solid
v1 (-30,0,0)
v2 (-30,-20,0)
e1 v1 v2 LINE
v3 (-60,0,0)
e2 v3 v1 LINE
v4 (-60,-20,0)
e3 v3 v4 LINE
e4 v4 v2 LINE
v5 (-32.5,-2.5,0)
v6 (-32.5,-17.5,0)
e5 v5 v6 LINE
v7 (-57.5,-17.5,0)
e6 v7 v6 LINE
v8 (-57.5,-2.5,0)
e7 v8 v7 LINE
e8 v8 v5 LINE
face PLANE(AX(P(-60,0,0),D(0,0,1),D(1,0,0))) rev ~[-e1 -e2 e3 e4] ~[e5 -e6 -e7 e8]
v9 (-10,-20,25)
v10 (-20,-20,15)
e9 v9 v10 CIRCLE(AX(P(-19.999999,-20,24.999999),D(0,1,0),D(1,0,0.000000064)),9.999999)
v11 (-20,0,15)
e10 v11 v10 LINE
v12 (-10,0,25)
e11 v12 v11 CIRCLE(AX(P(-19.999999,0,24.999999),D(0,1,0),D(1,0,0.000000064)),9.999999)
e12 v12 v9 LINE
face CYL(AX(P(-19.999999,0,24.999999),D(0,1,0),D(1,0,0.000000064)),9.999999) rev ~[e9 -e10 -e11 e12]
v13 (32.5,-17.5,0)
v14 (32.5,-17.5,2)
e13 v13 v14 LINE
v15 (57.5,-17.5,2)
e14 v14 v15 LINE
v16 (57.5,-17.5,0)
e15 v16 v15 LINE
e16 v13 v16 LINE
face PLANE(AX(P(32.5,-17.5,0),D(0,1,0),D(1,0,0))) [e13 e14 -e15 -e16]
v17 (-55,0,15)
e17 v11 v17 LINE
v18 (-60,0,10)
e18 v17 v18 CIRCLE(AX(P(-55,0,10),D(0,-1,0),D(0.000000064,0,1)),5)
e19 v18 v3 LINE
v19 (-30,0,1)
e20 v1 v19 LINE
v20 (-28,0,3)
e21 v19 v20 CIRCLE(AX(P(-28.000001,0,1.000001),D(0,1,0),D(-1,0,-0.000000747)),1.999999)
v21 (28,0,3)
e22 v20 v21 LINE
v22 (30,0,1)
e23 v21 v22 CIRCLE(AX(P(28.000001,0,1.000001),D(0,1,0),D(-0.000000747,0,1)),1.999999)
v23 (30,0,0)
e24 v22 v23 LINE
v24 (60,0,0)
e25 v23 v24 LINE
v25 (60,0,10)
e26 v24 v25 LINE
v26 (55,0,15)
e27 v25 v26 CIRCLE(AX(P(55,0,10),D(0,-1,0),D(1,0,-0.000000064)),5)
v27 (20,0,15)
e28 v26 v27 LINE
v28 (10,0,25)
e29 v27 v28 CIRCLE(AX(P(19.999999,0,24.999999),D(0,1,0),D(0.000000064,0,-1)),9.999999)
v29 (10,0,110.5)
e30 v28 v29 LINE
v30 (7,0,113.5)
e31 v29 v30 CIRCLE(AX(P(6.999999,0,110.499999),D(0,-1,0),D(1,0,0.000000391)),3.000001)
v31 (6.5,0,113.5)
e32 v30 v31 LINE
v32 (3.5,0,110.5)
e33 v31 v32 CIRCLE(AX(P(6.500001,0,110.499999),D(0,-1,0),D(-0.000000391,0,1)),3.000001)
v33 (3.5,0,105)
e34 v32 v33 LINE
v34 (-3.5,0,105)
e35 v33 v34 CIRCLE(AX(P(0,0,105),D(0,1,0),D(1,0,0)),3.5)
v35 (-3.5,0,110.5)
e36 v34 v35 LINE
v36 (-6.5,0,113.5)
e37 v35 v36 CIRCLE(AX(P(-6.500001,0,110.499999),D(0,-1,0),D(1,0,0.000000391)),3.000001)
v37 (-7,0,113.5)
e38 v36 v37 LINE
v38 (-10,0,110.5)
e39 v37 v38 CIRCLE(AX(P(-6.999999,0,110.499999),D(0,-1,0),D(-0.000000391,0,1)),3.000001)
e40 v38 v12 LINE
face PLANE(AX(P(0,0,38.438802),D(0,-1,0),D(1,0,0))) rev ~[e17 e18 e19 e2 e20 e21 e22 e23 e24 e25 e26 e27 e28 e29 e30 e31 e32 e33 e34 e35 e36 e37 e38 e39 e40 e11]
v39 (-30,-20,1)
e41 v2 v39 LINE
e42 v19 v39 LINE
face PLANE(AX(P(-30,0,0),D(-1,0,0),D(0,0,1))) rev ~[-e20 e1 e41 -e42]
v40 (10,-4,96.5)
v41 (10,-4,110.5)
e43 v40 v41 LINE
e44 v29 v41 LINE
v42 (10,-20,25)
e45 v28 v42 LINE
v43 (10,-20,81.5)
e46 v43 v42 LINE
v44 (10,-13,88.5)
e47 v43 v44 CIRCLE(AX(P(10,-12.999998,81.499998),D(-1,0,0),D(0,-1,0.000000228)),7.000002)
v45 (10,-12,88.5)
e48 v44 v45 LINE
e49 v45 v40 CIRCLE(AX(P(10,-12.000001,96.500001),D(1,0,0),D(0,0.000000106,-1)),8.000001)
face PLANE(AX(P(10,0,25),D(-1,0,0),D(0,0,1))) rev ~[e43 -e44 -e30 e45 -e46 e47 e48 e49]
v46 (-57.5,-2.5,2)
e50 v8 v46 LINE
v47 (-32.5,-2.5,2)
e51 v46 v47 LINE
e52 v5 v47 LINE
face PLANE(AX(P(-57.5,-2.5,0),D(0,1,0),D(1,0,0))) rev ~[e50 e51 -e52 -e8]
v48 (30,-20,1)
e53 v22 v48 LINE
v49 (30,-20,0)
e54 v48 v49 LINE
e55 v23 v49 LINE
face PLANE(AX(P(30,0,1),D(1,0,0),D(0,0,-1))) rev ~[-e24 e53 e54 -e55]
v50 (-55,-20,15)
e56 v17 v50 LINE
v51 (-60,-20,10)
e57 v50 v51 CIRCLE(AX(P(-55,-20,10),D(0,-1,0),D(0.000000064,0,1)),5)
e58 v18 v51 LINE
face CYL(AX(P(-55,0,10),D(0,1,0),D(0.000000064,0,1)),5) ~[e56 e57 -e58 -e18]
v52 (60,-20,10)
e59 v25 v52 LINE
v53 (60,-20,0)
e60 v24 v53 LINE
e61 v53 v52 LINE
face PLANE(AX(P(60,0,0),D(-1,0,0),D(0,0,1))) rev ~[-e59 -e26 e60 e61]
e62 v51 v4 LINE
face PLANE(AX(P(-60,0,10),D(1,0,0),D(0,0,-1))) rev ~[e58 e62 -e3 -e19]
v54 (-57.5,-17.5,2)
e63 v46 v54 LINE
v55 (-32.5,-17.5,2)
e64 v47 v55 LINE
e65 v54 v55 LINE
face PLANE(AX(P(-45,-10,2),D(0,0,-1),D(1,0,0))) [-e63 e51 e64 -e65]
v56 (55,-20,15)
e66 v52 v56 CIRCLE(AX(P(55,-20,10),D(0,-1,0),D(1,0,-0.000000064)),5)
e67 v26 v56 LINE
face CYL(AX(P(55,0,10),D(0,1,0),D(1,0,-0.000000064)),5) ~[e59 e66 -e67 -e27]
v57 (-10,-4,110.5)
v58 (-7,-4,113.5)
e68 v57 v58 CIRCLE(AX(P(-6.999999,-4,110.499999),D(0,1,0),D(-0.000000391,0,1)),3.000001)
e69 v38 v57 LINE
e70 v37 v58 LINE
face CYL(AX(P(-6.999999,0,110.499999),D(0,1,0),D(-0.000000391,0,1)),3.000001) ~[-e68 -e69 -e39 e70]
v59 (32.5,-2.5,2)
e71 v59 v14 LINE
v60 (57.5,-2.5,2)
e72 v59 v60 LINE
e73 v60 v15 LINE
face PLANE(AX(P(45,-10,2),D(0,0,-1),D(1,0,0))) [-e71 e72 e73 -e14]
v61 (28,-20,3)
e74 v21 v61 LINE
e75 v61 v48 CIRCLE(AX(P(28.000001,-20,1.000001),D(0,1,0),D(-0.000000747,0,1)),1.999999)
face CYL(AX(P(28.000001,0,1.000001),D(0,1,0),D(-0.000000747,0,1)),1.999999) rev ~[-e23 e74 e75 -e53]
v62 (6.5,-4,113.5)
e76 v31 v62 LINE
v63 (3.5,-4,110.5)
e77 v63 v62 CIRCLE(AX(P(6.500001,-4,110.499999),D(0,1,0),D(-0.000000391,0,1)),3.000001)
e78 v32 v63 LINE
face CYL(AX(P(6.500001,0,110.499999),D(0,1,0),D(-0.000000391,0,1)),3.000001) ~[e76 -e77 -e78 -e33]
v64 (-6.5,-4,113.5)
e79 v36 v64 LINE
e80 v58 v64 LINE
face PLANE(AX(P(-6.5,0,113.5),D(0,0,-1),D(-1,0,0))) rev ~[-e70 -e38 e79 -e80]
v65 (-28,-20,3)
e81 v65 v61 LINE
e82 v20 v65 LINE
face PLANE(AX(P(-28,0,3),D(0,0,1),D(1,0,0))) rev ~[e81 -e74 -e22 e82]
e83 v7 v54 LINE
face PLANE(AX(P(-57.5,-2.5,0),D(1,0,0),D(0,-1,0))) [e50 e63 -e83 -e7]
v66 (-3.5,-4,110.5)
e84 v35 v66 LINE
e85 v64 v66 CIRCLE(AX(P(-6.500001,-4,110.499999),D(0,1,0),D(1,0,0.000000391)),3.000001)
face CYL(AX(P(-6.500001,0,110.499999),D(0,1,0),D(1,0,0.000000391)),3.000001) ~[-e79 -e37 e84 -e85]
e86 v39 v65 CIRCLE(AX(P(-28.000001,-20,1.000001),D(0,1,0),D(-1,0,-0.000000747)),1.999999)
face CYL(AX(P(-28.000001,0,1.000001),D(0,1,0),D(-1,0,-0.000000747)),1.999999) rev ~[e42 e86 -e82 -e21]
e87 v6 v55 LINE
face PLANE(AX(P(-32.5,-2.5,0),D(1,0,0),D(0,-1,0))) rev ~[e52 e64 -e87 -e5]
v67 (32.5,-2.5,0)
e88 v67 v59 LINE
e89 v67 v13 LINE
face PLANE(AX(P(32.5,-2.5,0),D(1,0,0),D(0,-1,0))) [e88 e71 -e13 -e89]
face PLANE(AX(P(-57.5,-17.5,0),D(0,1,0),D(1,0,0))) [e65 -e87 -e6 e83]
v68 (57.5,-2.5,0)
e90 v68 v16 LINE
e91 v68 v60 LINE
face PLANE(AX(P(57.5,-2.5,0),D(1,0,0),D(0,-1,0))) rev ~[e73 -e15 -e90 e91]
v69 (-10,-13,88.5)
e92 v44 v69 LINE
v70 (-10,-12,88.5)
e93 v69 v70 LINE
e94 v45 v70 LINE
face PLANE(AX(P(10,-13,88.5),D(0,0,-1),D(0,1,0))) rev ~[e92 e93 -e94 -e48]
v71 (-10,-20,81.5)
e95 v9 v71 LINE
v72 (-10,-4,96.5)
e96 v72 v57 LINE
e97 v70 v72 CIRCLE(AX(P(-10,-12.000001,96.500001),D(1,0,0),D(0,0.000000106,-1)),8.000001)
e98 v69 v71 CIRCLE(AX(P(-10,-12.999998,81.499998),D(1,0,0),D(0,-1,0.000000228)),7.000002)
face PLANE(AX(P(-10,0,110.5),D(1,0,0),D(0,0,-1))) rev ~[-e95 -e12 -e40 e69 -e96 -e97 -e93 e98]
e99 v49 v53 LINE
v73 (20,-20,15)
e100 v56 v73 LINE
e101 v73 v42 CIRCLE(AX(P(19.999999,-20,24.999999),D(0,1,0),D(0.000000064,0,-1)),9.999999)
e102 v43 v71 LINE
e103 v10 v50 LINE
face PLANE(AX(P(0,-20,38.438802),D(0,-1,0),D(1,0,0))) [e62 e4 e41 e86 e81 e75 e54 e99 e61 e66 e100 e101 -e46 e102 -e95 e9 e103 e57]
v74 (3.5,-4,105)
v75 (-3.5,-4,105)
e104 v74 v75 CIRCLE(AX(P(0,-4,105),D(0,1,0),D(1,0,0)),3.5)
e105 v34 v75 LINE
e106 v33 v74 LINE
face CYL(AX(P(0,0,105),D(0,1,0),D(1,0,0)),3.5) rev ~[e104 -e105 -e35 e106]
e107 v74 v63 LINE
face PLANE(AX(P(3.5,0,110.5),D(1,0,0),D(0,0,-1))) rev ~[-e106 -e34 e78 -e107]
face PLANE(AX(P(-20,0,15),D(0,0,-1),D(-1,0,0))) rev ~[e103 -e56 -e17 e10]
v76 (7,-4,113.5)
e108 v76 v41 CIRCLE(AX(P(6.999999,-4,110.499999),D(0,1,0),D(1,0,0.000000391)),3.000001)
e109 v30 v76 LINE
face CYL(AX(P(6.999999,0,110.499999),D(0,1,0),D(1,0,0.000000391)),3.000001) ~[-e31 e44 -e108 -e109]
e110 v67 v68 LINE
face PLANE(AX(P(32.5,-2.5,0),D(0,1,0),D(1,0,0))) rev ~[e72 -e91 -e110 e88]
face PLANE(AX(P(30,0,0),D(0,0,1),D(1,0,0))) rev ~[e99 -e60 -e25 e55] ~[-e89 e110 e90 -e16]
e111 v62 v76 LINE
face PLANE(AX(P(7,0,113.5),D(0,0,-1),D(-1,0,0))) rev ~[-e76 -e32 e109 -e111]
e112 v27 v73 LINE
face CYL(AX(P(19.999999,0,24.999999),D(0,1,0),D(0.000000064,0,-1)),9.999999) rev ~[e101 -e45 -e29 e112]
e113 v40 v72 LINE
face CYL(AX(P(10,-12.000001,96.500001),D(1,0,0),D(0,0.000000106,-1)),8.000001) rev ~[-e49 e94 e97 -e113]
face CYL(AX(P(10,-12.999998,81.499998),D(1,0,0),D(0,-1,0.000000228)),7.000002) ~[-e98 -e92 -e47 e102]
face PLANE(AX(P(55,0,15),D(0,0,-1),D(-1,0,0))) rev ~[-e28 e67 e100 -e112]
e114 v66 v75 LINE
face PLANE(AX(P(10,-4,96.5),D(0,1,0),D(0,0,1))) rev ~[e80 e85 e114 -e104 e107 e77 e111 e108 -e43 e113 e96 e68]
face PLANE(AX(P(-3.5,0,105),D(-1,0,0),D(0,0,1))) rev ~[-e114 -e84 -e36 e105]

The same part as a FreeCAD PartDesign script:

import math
import FreeCAD as App
import Part
import Sketcher

V = App.Vector
Q = App.Units.Quantity


def add_polygon(sketch, points):
    """Adds a closed chain of lines whose ends are joined by coincident constraints."""
    first, n = sketch.GeometryCount, len(points)
    for a, b in zip(points, points[1:] + points[:1]):
        sketch.addGeometry(Part.LineSegment(App.Vector(*a, 0), App.Vector(*b, 0)), False)
    for i in range(n):
        sketch.addConstraint(Sketcher.Constraint("Coincident", first + i, 2, first + (i + 1) % n, 1))

doc = App.newDocument("Part")
body = doc.addObject("PartDesign::Body", "Body")

sketch1 = body.newObject("Sketcher::SketchObject", "Sketch")
sketch1.AttachmentSupport = (doc.getObject("XZ_Plane"), [""])
sketch1.MapMode = "FlatFace"
sketch1.addGeometry([
    Part.ArcOfCircle(Part.Circle(V(0, 105, 0), V(0, 0, 1), 3.5), math.radians(180), math.radians(360)),
    Part.LineSegment(V(-3.5, 105, 0), V(-3.5, 110.5, 0)),
    Part.ArcOfCircle(Part.Circle(V(-6.5, 110.5, 0), V(0, 0, 1), 3), math.radians(0), math.radians(90)),
    Part.LineSegment(V(-6.5, 113.5, 0), V(-7, 113.5, 0)),
    Part.ArcOfCircle(Part.Circle(V(-7, 110.5, 0), V(0, 0, 1), 3), math.radians(90), math.radians(180)),
    Part.LineSegment(V(-10, 110.5, 0), V(-10, 25, 0)),
    Part.ArcOfCircle(Part.Circle(V(-20, 25, 0), V(0, 0, 1), 10), math.radians(-90), math.radians(0)),
    Part.LineSegment(V(-20, 15, 0), V(-55, 15, 0)),
    Part.ArcOfCircle(Part.Circle(V(-55, 10, 0), V(0, 0, 1), 5), math.radians(90), math.radians(180)),
    Part.LineSegment(V(-60, 10, 0), V(-60, 0, 0)),
    Part.LineSegment(V(-60, 0, 0), V(-30, 0, 0)),
    Part.LineSegment(V(-30, 0, 0), V(-30, 1, 0)),
    Part.ArcOfCircle(Part.Circle(V(-28, 1, 0), V(0, 0, 1), 2), math.radians(90), math.radians(180)),
    Part.LineSegment(V(-28, 3, 0), V(28, 3, 0)),
    Part.ArcOfCircle(Part.Circle(V(28, 1, 0), V(0, 0, 1), 2), math.radians(0), math.radians(90)),
    Part.LineSegment(V(30, 1, 0), V(30, 0, 0)),
    Part.LineSegment(V(30, 0, 0), V(60, 0, 0)),
    Part.LineSegment(V(60, 0, 0), V(60, 10, 0)),
    Part.ArcOfCircle(Part.Circle(V(55, 10, 0), V(0, 0, 1), 5), math.radians(0), math.radians(90)),
    Part.LineSegment(V(55, 15, 0), V(20, 15, 0)),
    Part.ArcOfCircle(Part.Circle(V(20, 25, 0), V(0, 0, 1), 10), math.radians(180), math.radians(270)),
    Part.LineSegment(V(10, 25, 0), V(10, 110.5, 0)),
    Part.ArcOfCircle(Part.Circle(V(7, 110.5, 0), V(0, 0, 1), 3), math.radians(0), math.radians(90)),
    Part.LineSegment(V(7, 113.5, 0), V(6.5, 113.5, 0)),
    Part.ArcOfCircle(Part.Circle(V(6.5, 110.5, 0), V(0, 0, 1), 3), math.radians(90), math.radians(180)),
    Part.LineSegment(V(3.5, 110.5, 0), V(3.5, 105, 0)),
], False)
sketch1.addConstraint([
    Sketcher.Constraint("Tangent", 0, 1, 1, 1),
    Sketcher.Constraint("Tangent", 1, 2, 2, 1),
    Sketcher.Constraint("Tangent", 2, 2, 3, 1),
    Sketcher.Constraint("Tangent", 3, 2, 4, 1),
    Sketcher.Constraint("Tangent", 4, 2, 5, 1),
    Sketcher.Constraint("Tangent", 5, 2, 6, 2),
    Sketcher.Constraint("Tangent", 6, 1, 7, 1),
    Sketcher.Constraint("Tangent", 7, 2, 8, 1),
    Sketcher.Constraint("Tangent", 8, 2, 9, 1),
    Sketcher.Constraint("Coincident", 9, 2, 10, 1),
    Sketcher.Constraint("Coincident", 10, 2, 11, 1),
    Sketcher.Constraint("Tangent", 11, 2, 12, 2),
    Sketcher.Constraint("Tangent", 12, 1, 13, 1),
    Sketcher.Constraint("Tangent", 13, 2, 14, 2),
    Sketcher.Constraint("Tangent", 14, 1, 15, 1),
    Sketcher.Constraint("Coincident", 15, 2, 16, 1),
    Sketcher.Constraint("Coincident", 16, 2, 17, 1),
    Sketcher.Constraint("Tangent", 17, 2, 18, 1),
    Sketcher.Constraint("Tangent", 18, 2, 19, 1),
    Sketcher.Constraint("Tangent", 19, 2, 20, 2),
    Sketcher.Constraint("Tangent", 20, 1, 21, 1),
    Sketcher.Constraint("Tangent", 21, 2, 22, 1),
    Sketcher.Constraint("Tangent", 22, 2, 23, 1),
    Sketcher.Constraint("Tangent", 23, 2, 24, 1),
    Sketcher.Constraint("Tangent", 24, 2, 25, 1),
    Sketcher.Constraint("Tangent", 25, 2, 0, 2),
    Sketcher.Constraint("Vertical", 1),
    Sketcher.Constraint("Horizontal", 3),
    Sketcher.Constraint("Vertical", 5),
    Sketcher.Constraint("Horizontal", 7),
    Sketcher.Constraint("Vertical", 9),
    Sketcher.Constraint("Horizontal", 10),
    Sketcher.Constraint("Vertical", 11),
    Sketcher.Constraint("Horizontal", 13),
    Sketcher.Constraint("Vertical", 15),
    Sketcher.Constraint("Horizontal", 16),
    Sketcher.Constraint("Vertical", 17),
    Sketcher.Constraint("Horizontal", 19),
    Sketcher.Constraint("Vertical", 21),
    Sketcher.Constraint("Horizontal", 23),
    Sketcher.Constraint("Vertical", 25),
    Sketcher.Constraint("Equal", 2, 4),
    Sketcher.Constraint("Equal", 12, 14),
    Sketcher.Constraint("Equal", 8, 18),
    Sketcher.Constraint("Equal", 6, 20),
    Sketcher.Constraint("Equal", 4, 22),
    Sketcher.Constraint("Equal", 22, 24),
    Sketcher.Constraint("Symmetric", 10, 2, 15, 2, -1, 1),
    Sketcher.Constraint("Symmetric", 8, 3, 18, 3, -2),
    Sketcher.Constraint("Symmetric", 4, 3, 22, 3, -2),
    Sketcher.Constraint("PointOnObject", 0, 3, -2),
    Sketcher.Constraint("PointOnObject", 9, 2, -1),
    Sketcher.Constraint("Radius", 2, Q("3.000001 mm")),
    Sketcher.Constraint("Radius", 6, Q("9.999999 mm")),
    Sketcher.Constraint("Radius", 8, Q("5 mm")),
    Sketcher.Constraint("Radius", 12, Q("1.999999 mm")),
    Sketcher.Constraint("Radius", 0, Q("3.5 mm")),
    Sketcher.Constraint("DistanceX", 7, 2, 7, 1, Q("35 mm")),
    Sketcher.Constraint("DistanceX", 10, 1, 10, 2, Q("30 mm")),
    Sketcher.Constraint("DistanceX", 13, 1, 13, 2, Q("56 mm")),
    Sketcher.Constraint("DistanceY", 9, 2, 9, 1, Q("10 mm")),
    Sketcher.Constraint("DistanceY", 11, 1, 11, 2, Q("1 mm")),
    Sketcher.Constraint("DistanceY", 1, 1, 1, 2, Q("5.5 mm")),
    Sketcher.Constraint("DistanceY", 5, 2, 5, 1, Q("85.5 mm")),
])
pad1 = body.newObject("PartDesign::Pad", "Pad")
pad1.Profile = sketch1
pad1.Length = 20

sketch2 = body.newObject("Sketcher::SketchObject", "Sketch001")
sketch2.AttachmentSupport = (doc.getObject("YZ_Plane"), [""])
sketch2.MapMode = "FlatFace"
sketch2.AttachmentOffset = App.Placement(V(0, 0, 10), App.Rotation())
sketch2.addGeometry([
    Part.LineSegment(V(-4, 116.6, 0), V(-25.2, 116.6, 0)),
    Part.LineSegment(V(-25.2, 116.6, 0), V(-25.2, 79.4, 0)),
    Part.LineSegment(V(-25.2, 79.4, 0), V(-20, 79.4, 0)),
    Part.LineSegment(V(-20, 79.4, 0), V(-20, 81.5, 0)),
    Part.ArcOfCircle(Part.Circle(V(-13, 81.5, 0), V(0, 0, 1), 7), math.radians(90), math.radians(180)),
    Part.LineSegment(V(-13, 88.5, 0), V(-12, 88.5, 0)),
    Part.ArcOfCircle(Part.Circle(V(-12, 96.5, 0), V(0, 0, 1), 8), math.radians(-90), math.radians(0)),
    Part.LineSegment(V(-4, 96.5, 0), V(-4, 116.6, 0)),
], False)
sketch2.addConstraint([
    Sketcher.Constraint("Coincident", 0, 2, 1, 1),
    Sketcher.Constraint("Coincident", 1, 2, 2, 1),
    Sketcher.Constraint("Coincident", 2, 2, 3, 1),
    Sketcher.Constraint("Tangent", 3, 2, 4, 2),
    Sketcher.Constraint("Tangent", 4, 1, 5, 1),
    Sketcher.Constraint("Tangent", 5, 2, 6, 1),
    Sketcher.Constraint("Tangent", 6, 2, 7, 1),
    Sketcher.Constraint("Coincident", 7, 2, 0, 1),
    Sketcher.Constraint("Horizontal", 0),
    Sketcher.Constraint("Vertical", 1),
    Sketcher.Constraint("Horizontal", 2),
    Sketcher.Constraint("Vertical", 3),
    Sketcher.Constraint("Horizontal", 5),
    Sketcher.Constraint("Vertical", 7),
    Sketcher.Constraint("Radius", 4, Q("7.000002 mm")),
    Sketcher.Constraint("Radius", 6, Q("8.000001 mm")),
    Sketcher.Constraint("DistanceX", 5, 1, 5, 2, Q("1 mm")),
    Sketcher.Constraint("DistanceX", 4, 3, -1, 1, Q("12.999998 mm")),
    Sketcher.Constraint("DistanceY", -1, 1, 4, 3, Q("81.499998 mm")),
    Sketcher.Constraint("DistanceX", 0, 2, 0, 1, Q("21.165081 mm")),
    Sketcher.Constraint("DistanceY", 1, 2, 1, 1, Q("37.16123 mm")),
    Sketcher.Constraint("DistanceY", 4, 3, 0, 2, Q("35.103599 mm")),
])
pocket1 = body.newObject("PartDesign::Pocket", "Pocket")
pocket1.Profile = sketch2
pocket1.Length = 25

sketch3 = body.newObject("Sketcher::SketchObject", "Sketch002")
sketch3.AttachmentSupport = (doc.getObject("XY_Plane"), [""])
sketch3.MapMode = "FlatFace"
add_polygon(sketch3, [(-58, -18), (-58, -2), (-32, -2), (-32, -18)])
add_polygon(sketch3, [(32, -18), (32, -2), (58, -2), (58, -18)])
sketch3.addConstraint([
    Sketcher.Constraint("Vertical", 0),
    Sketcher.Constraint("Horizontal", 1),
    Sketcher.Constraint("Vertical", 2),
    Sketcher.Constraint("Horizontal", 3),
    Sketcher.Constraint("Vertical", 4),
    Sketcher.Constraint("Horizontal", 5),
    Sketcher.Constraint("Vertical", 6),
    Sketcher.Constraint("Horizontal", 7),
    Sketcher.Constraint("Symmetric", 1, 2, 4, 2, -2),
    Sketcher.Constraint("Symmetric", 3, 2, 6, 2, -2),
    Sketcher.Constraint("DistanceX", 1, 1, 1, 2, Q("25 mm")),
    Sketcher.Constraint("DistanceY", 0, 1, 0, 2, Q("15 mm")),
    Sketcher.Constraint("DistanceX", 1, 2, 4, 2, Q("65 mm")),
    Sketcher.Constraint("DistanceY", 0, 2, -1, 1, Q("2.5 mm")),
])
pocket2 = body.newObject("PartDesign::Pocket", "Pocket001")
pocket2.Profile = sketch3
pocket2.Length = 2
pocket2.Reversed = True

doc.recompute()
